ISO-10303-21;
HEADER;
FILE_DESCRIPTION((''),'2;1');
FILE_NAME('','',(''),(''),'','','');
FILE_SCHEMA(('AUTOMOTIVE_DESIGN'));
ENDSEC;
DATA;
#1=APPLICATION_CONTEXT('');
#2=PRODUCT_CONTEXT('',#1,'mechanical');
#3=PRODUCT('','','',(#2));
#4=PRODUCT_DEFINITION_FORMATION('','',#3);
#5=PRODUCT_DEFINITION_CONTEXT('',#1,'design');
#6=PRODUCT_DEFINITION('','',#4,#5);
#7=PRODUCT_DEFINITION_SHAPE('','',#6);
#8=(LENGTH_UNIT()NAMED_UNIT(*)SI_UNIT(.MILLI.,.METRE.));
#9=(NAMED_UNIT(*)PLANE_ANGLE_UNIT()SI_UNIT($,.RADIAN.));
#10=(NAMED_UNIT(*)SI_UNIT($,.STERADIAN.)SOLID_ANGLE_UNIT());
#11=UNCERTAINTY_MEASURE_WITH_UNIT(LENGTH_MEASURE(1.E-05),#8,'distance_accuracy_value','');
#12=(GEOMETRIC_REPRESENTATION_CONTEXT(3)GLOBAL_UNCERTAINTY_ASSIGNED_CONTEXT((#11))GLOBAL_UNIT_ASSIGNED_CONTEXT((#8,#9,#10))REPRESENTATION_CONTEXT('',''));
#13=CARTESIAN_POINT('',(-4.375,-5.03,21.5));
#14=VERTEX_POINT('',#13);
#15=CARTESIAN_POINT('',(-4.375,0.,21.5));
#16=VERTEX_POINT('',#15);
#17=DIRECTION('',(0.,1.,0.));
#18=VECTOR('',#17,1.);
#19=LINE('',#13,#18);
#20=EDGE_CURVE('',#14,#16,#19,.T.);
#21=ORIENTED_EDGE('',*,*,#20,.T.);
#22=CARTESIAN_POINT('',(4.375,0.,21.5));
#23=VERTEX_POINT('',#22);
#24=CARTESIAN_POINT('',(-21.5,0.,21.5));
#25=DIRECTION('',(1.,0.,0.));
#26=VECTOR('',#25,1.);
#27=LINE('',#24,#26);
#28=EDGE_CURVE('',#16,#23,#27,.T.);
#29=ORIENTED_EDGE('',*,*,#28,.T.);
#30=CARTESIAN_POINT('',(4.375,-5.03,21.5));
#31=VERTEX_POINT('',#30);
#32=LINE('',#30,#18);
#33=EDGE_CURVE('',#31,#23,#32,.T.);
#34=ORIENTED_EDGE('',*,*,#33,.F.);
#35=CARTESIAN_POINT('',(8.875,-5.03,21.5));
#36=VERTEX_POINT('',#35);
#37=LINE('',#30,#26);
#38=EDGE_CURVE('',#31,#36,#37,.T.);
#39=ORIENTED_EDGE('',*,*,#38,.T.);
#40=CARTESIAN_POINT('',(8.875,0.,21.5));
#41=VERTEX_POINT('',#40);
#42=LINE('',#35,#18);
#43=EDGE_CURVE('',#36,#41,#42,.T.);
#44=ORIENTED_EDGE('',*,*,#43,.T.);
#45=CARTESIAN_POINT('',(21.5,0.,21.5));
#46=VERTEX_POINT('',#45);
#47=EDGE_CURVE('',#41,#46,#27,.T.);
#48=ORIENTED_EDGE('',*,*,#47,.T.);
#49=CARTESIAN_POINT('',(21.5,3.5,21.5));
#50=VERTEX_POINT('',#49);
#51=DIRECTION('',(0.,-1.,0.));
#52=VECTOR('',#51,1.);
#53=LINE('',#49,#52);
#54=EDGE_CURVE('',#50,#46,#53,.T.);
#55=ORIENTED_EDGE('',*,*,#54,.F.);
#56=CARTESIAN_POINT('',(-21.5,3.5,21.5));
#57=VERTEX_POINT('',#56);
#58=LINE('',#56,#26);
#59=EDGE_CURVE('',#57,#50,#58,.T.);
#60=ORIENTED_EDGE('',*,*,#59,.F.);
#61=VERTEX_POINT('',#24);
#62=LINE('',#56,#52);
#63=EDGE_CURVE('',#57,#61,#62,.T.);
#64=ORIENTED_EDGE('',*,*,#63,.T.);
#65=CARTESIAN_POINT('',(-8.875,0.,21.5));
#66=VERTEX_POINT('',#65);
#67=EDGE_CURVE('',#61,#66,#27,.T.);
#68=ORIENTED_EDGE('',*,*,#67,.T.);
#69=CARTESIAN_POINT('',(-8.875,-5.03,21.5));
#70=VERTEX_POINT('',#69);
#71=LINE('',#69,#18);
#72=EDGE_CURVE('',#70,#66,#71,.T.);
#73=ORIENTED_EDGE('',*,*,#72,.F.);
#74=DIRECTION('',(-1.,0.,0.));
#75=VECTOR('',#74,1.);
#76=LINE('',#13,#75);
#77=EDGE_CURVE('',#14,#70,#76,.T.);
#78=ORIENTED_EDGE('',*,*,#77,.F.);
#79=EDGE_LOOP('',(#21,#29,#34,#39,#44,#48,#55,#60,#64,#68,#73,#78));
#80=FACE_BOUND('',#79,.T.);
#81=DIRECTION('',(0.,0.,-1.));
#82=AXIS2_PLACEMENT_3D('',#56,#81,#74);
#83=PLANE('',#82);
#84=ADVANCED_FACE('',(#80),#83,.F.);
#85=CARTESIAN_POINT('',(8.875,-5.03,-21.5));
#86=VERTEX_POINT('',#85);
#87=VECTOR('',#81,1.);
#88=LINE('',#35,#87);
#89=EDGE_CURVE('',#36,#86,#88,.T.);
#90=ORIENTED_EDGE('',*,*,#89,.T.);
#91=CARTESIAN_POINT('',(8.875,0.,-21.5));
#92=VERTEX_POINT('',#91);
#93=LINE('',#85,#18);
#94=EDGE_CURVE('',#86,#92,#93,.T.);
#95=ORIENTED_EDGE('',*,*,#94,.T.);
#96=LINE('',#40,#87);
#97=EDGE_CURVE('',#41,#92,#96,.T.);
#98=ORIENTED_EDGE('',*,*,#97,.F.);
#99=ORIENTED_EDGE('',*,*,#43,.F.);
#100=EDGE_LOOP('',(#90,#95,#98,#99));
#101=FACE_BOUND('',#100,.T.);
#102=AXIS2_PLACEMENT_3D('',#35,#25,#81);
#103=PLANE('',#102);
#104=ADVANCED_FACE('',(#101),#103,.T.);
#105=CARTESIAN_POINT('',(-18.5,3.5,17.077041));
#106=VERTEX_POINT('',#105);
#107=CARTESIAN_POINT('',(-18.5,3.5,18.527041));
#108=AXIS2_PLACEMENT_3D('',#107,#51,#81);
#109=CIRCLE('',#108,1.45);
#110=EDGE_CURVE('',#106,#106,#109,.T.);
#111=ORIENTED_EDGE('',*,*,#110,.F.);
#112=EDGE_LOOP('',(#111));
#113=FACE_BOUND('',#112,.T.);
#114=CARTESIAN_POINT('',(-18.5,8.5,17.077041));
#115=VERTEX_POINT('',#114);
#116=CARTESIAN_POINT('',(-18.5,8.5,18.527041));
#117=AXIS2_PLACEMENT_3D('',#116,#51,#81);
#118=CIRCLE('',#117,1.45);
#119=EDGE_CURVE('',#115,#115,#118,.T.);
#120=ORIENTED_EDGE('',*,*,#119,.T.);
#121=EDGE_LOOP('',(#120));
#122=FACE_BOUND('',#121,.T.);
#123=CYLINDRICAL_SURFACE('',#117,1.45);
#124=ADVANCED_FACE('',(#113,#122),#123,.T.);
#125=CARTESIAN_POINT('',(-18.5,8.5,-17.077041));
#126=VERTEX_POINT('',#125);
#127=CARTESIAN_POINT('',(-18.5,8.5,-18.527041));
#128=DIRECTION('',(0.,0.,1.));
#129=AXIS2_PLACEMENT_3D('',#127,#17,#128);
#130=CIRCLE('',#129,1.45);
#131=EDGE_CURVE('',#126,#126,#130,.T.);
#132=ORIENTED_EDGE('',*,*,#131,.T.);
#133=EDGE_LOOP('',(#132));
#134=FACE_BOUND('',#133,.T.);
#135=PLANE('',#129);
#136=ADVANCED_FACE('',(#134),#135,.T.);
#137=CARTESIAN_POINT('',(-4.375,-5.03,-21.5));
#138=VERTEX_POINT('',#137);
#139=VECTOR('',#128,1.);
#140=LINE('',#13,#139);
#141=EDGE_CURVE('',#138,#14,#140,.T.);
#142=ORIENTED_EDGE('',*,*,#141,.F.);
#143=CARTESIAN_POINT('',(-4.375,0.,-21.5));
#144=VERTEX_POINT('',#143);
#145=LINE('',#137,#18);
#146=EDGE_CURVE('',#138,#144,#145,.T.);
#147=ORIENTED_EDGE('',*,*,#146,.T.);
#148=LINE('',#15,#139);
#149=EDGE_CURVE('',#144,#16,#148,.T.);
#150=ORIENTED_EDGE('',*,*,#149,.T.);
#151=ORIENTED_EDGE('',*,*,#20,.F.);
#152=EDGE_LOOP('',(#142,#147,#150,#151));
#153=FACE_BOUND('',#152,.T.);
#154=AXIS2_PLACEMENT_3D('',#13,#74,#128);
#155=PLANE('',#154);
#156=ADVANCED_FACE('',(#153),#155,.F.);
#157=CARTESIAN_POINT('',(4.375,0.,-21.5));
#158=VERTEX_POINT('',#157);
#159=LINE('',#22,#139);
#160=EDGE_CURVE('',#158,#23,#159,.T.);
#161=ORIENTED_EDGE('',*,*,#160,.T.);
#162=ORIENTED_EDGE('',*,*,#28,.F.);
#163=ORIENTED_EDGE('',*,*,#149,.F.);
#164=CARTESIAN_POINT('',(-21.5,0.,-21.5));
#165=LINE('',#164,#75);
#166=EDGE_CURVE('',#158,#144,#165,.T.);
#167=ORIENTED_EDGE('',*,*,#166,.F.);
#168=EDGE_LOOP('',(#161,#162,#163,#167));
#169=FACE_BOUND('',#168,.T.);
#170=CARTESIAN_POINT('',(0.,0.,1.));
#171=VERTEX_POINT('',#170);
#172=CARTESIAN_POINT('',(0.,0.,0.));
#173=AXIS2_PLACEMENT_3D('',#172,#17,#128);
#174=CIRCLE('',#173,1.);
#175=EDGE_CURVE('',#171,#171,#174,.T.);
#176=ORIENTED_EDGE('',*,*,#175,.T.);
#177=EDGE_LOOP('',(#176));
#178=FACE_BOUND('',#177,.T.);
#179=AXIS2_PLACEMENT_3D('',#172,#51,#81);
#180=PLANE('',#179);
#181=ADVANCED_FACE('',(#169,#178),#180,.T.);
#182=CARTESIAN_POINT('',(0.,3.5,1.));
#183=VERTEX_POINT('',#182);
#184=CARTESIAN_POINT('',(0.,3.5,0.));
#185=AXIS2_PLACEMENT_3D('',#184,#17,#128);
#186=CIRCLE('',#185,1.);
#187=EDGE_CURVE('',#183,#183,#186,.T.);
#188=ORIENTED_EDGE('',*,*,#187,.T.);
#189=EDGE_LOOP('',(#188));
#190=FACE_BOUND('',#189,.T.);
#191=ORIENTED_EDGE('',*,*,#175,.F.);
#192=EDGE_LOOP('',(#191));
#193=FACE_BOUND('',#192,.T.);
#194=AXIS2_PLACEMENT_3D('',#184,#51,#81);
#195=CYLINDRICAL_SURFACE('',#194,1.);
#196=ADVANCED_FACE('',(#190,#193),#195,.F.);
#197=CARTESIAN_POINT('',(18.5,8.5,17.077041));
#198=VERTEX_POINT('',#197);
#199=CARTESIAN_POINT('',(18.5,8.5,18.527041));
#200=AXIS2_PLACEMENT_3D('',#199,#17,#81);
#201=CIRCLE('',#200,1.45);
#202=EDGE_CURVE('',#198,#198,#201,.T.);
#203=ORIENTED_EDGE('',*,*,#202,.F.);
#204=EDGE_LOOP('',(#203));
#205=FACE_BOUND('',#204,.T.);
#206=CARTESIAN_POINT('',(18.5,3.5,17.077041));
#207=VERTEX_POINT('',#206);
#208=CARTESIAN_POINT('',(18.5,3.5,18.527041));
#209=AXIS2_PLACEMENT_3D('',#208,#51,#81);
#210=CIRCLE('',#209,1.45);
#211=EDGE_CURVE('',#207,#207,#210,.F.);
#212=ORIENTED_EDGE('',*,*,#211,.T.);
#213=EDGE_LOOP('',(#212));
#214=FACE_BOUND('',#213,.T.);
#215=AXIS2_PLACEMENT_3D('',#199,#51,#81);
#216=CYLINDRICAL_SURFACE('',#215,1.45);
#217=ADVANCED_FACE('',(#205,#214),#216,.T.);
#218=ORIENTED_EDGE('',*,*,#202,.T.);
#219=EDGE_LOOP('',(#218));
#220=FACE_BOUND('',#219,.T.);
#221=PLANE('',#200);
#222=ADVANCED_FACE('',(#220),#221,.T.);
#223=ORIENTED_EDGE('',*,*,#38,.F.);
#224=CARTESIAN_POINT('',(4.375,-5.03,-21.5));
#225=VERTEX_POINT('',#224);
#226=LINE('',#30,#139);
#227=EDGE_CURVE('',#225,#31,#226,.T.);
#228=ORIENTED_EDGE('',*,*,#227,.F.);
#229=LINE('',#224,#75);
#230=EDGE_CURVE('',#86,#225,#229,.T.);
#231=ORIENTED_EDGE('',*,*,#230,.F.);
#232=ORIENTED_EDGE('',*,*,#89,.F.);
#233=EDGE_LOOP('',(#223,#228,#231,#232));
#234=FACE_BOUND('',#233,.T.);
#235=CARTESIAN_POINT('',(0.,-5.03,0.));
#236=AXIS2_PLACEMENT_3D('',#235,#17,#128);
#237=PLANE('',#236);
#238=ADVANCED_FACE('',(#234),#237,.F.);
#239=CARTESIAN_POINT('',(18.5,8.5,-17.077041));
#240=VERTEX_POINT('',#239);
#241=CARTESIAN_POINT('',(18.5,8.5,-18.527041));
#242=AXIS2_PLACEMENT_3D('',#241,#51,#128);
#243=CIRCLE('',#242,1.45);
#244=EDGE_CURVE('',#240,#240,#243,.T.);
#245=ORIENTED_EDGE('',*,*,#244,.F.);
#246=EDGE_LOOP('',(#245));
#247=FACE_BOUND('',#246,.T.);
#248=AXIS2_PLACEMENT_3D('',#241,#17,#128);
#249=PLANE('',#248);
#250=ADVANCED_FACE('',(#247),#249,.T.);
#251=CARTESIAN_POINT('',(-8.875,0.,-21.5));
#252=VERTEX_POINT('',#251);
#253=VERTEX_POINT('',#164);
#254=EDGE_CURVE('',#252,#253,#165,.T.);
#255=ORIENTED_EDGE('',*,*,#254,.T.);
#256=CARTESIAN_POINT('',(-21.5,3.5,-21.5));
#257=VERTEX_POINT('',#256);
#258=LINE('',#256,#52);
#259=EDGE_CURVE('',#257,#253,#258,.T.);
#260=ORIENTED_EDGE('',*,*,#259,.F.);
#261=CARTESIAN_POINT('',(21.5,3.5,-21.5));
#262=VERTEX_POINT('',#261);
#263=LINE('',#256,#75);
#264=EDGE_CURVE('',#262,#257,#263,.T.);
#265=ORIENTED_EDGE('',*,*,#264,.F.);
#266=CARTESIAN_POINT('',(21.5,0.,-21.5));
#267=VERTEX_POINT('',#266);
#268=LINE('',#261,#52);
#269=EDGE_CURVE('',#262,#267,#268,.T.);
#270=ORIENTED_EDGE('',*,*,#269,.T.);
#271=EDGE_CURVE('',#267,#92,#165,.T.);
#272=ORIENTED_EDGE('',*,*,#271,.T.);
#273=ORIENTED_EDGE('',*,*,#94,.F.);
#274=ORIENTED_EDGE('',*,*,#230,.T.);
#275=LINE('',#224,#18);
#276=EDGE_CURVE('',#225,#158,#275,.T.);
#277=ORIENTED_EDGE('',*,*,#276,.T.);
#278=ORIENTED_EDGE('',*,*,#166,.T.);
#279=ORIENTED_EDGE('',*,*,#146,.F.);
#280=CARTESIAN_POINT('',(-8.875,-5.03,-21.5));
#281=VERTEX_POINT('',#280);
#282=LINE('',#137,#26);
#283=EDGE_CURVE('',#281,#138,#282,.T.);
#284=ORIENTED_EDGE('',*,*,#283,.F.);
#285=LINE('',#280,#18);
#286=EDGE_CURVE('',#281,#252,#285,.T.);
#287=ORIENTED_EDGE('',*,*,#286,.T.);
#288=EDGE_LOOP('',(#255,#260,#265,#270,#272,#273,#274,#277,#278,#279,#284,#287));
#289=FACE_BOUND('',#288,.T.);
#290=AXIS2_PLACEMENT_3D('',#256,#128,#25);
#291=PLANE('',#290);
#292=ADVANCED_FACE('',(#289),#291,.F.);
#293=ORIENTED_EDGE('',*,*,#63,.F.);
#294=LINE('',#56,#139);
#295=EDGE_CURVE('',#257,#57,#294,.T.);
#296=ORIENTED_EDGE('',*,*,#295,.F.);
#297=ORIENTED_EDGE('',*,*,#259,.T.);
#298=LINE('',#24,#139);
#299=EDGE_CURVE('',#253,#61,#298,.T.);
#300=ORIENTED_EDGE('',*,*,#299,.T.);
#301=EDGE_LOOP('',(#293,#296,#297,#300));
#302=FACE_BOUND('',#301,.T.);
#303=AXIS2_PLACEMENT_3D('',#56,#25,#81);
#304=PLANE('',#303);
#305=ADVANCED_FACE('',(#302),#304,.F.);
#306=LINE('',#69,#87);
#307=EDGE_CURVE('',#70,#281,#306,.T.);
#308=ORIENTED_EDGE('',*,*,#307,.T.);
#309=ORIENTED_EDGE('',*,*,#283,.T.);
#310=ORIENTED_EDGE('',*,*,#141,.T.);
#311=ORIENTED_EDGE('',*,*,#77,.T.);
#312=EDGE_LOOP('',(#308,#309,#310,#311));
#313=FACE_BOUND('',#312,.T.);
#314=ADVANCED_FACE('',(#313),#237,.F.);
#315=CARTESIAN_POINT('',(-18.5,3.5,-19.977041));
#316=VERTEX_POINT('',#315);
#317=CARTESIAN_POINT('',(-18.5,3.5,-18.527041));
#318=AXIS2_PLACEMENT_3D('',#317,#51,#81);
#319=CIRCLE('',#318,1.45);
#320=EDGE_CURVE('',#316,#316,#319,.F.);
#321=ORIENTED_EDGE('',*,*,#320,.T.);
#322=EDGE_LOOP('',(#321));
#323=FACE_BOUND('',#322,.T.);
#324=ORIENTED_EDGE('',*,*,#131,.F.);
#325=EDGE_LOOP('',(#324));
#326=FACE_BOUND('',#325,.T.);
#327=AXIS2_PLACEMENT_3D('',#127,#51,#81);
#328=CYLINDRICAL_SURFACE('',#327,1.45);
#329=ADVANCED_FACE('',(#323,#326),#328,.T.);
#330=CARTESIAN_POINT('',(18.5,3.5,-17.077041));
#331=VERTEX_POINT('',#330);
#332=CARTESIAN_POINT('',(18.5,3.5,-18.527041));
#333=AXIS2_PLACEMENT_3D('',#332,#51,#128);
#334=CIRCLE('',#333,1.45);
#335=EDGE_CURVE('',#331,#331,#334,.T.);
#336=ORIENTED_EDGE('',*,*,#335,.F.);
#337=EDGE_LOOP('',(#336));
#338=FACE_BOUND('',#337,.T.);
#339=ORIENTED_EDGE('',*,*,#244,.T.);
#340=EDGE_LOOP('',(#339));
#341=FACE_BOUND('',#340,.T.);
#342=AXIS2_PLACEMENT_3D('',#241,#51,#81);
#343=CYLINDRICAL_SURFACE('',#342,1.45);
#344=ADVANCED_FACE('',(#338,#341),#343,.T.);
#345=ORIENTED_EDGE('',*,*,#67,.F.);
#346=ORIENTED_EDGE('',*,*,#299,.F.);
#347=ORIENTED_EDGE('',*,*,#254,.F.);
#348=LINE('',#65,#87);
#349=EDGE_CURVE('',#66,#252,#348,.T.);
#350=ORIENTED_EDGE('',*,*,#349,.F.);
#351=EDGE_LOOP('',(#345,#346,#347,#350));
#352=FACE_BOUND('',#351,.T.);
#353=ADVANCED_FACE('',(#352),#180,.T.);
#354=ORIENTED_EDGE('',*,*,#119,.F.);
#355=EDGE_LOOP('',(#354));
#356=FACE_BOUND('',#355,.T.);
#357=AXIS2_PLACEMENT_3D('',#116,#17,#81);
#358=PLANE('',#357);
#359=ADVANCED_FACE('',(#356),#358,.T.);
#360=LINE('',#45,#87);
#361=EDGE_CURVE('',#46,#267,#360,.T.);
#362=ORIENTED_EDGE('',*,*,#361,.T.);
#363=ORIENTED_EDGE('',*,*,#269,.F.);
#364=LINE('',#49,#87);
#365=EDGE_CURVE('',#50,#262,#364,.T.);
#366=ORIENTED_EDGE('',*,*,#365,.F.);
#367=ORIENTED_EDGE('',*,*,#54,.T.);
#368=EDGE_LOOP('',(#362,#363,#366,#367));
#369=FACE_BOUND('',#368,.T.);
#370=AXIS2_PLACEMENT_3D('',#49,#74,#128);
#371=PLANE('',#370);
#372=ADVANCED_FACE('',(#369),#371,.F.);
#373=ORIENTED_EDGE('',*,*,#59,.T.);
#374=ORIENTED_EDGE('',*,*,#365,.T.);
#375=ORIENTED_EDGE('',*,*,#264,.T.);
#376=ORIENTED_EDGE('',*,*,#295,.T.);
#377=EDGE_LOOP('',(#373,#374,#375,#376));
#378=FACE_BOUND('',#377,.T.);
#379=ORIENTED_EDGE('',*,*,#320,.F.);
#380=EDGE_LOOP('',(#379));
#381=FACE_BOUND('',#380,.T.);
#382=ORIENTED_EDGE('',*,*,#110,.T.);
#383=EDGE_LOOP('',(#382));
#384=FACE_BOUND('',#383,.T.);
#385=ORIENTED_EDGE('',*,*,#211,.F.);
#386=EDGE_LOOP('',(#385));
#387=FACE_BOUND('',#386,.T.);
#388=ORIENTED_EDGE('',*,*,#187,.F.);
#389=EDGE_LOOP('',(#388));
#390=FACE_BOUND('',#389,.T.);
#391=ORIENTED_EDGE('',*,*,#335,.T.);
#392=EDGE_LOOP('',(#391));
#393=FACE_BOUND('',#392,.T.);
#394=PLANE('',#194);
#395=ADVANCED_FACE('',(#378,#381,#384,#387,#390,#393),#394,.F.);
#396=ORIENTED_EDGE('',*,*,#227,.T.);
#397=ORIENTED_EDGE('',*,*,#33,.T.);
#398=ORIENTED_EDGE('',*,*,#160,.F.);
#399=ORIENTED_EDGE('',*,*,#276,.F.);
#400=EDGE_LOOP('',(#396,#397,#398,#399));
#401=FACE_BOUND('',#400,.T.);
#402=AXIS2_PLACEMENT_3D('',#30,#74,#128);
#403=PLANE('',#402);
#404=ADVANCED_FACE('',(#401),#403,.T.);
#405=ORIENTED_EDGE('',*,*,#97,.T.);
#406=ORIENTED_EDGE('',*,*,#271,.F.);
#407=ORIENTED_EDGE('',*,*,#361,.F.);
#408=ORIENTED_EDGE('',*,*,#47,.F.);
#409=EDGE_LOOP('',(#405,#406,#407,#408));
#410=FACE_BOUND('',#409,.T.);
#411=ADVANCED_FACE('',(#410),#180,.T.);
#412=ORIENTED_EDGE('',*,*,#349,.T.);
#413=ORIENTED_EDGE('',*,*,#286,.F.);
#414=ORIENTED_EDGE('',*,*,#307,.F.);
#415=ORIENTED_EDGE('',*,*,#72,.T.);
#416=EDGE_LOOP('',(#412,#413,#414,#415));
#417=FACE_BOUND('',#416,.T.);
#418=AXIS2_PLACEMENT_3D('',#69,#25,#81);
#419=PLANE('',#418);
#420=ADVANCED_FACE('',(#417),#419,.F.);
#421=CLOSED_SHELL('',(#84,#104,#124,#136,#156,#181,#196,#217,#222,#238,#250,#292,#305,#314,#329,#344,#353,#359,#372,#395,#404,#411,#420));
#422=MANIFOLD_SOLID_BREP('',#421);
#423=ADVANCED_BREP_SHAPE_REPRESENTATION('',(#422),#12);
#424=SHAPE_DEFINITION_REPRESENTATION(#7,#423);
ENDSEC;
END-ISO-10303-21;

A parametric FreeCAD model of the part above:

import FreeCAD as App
import Part
import Sketcher

doc = App.newDocument("Part")
body = doc.addObject("PartDesign::Body", "Body")

# Sketch on XZ plane
sketch1 = body.newObject("Sketcher::SketchObject", "Sketch")
sketch1.AttachmentSupport = (doc.getObject("XZ_Plane"), [""])
sketch1.MapMode = "FlatFace"
sketch1.addGeometry([
    Part.LineSegment(App.Vector(-21.5, -21.5, 0), App.Vector(-21.5, 21.5, 0)),  # 0
    Part.LineSegment(App.Vector(-21.5, 21.5, 0), App.Vector(21.5, 21.5, 0)),  # 1
    Part.LineSegment(App.Vector(21.5, 21.5, 0), App.Vector(21.5, -21.5, 0)),  # 2
    Part.LineSegment(App.Vector(21.5, -21.5, 0), App.Vector(-21.5, -21.5, 0)),  # 3
    Part.Circle(App.Vector(0, 0, 0), App.Vector(0, 0, 1), 1),  # 4
], False)
sketch1.addConstraint([
    Sketcher.Constraint("Coincident", 0, 2, 1, 1),
    Sketcher.Constraint("Coincident", 1, 2, 2, 1),
    Sketcher.Constraint("Coincident", 2, 2, 3, 1),
    Sketcher.Constraint("Coincident", 3, 2, 0, 1),
    Sketcher.Constraint("Vertical", 0),
    Sketcher.Constraint("Horizontal", 1),
    Sketcher.Constraint("Vertical", 2),
    Sketcher.Constraint("Horizontal", 3),
    Sketcher.Constraint("Coincident", 4, 3, -1, 1),
    Sketcher.Constraint("Symmetric", 0, 2, 2, 2, -1, 1),
    Sketcher.Constraint("Equal", 3, 0),
    Sketcher.Constraint("Diameter", 4, 2.0),
    Sketcher.Constraint("DistanceX", 1, 1, 1, 2, 43.0),
])
pad1 = body.newObject("PartDesign::Pad", "Pad")
pad1.Profile = sketch1
pad1.Length = 3.5
pad1.Reversed = True

# Sketch on XZ plane
sketch2 = body.newObject("Sketcher::SketchObject", "Sketch001")
sketch2.AttachmentSupport = (doc.getObject("XZ_Plane"), [""])
sketch2.MapMode = "FlatFace"
sketch2.AttachmentOffset = App.Placement(App.Vector(0, 0, -3.5), App.Rotation())
sketch2.addGeometry(Part.Circle(App.Vector(-18.5, -18.5, 0), App.Vector(0, 0, 1), 1.4), False)
sketch2.addConstraint([
    Sketcher.Constraint("Diameter", 0, 2.9),
    Sketcher.Constraint("DistanceX", 0, 3, -1, 1, 18.5),
    Sketcher.Constraint("DistanceY", 0, 3, -1, 1, 18.527041),
])
pad2 = body.newObject("PartDesign::Pad", "Pad001")
pad2.Profile = sketch2
pad2.Length = 5
pad2.Reversed = True
doc.recompute()

mirrored = body.newObject("PartDesign::Mirrored", "Mirrored")
mirrored.Originals = [pad2]
mirrored.MirrorPlane = (doc.getObject("XY_Plane"), [""])
body.Tip = mirrored
doc.recompute()

mirrored2 = body.newObject("PartDesign::Mirrored", "Mirrored001")
mirrored2.Originals = [pad2]
mirrored2.MirrorPlane = (doc.getObject("YZ_Plane"), [""])
body.Tip = mirrored2

# Sketch on XZ plane
sketch3 = body.newObject("Sketcher::SketchObject", "Sketch002")
sketch3.AttachmentSupport = (doc.getObject("XZ_Plane"), [""])
sketch3.MapMode = "FlatFace"
sketch3.AttachmentOffset = App.Placement(App.Vector(0, 0, -3.5), App.Rotation())
sketch3.addGeometry(Part.Circle(App.Vector(18.5, 18.5, 0), App.Vector(0, 0, 1), 1.4), False)
sketch3.addConstraint([
    Sketcher.Constraint("Diameter", 0, 2.9),
    Sketcher.Constraint("DistanceX", -1, 1, 0, 3, 18.5),
    Sketcher.Constraint("DistanceY", -1, 1, 0, 3, 18.527041),
])
pad3 = body.newObject("PartDesign::Pad", "Pad002")
pad3.Profile = sketch3
pad3.Length = 5
pad3.Reversed = True

# Sketch on XZ plane
sketch4 = body.newObject("Sketcher::SketchObject", "Sketch003")
sketch4.AttachmentSupport = (doc.getObject("XZ_Plane"), [""])
sketch4.MapMode = "FlatFace"
sketch4.addGeometry([
    Part.LineSegment(App.Vector(-8.9, 21.5, 0), App.Vector(-8.9, -21.5, 0)),
    Part.LineSegment(App.Vector(-8.9, -21.5, 0), App.Vector(-4.4, -21.5, 0)),
    Part.LineSegment(App.Vector(-4.4, -21.5, 0), App.Vector(-4.4, 21.5, 0)),
    Part.LineSegment(App.Vector(-4.4, 21.5, 0), App.Vector(-8.9, 21.5, 0)),
], False)
sketch4.addConstraint([
    Sketcher.Constraint("Coincident", 0, 2, 1, 1),
    Sketcher.Constraint("Coincident", 1, 2, 2, 1),
    Sketcher.Constraint("Coincident", 2, 2, 3, 1),
    Sketcher.Constraint("Coincident", 3, 2, 0, 1),
    Sketcher.Constraint("Vertical", 0),
    Sketcher.Constraint("Horizontal", 1),
    Sketcher.Constraint("Vertical", 2),
    Sketcher.Constraint("Horizontal", 3),
    Sketcher.Constraint("DistanceY", 0, 2, 0, 1, 43.0),
    Sketcher.Constraint("DistanceX", 1, 1, 1, 2, 4.5),
    Sketcher.Constraint("DistanceY", 0, 2, -1, 1, 21.5),
    Sketcher.Constraint("DistanceX", 0, 2, -1, 1, 8.875),
])
pad4 = body.newObject("PartDesign::Pad", "Pad003")
pad4.Profile = sketch4
pad4.Length = 5.03
doc.recompute()

mirrored3 = body.newObject("PartDesign::Mirrored", "Mirrored002")
mirrored3.Originals = [pad4]
mirrored3.MirrorPlane = (doc.getObject("YZ_Plane"), [""])
body.Tip = mirrored3

doc.recompute()
